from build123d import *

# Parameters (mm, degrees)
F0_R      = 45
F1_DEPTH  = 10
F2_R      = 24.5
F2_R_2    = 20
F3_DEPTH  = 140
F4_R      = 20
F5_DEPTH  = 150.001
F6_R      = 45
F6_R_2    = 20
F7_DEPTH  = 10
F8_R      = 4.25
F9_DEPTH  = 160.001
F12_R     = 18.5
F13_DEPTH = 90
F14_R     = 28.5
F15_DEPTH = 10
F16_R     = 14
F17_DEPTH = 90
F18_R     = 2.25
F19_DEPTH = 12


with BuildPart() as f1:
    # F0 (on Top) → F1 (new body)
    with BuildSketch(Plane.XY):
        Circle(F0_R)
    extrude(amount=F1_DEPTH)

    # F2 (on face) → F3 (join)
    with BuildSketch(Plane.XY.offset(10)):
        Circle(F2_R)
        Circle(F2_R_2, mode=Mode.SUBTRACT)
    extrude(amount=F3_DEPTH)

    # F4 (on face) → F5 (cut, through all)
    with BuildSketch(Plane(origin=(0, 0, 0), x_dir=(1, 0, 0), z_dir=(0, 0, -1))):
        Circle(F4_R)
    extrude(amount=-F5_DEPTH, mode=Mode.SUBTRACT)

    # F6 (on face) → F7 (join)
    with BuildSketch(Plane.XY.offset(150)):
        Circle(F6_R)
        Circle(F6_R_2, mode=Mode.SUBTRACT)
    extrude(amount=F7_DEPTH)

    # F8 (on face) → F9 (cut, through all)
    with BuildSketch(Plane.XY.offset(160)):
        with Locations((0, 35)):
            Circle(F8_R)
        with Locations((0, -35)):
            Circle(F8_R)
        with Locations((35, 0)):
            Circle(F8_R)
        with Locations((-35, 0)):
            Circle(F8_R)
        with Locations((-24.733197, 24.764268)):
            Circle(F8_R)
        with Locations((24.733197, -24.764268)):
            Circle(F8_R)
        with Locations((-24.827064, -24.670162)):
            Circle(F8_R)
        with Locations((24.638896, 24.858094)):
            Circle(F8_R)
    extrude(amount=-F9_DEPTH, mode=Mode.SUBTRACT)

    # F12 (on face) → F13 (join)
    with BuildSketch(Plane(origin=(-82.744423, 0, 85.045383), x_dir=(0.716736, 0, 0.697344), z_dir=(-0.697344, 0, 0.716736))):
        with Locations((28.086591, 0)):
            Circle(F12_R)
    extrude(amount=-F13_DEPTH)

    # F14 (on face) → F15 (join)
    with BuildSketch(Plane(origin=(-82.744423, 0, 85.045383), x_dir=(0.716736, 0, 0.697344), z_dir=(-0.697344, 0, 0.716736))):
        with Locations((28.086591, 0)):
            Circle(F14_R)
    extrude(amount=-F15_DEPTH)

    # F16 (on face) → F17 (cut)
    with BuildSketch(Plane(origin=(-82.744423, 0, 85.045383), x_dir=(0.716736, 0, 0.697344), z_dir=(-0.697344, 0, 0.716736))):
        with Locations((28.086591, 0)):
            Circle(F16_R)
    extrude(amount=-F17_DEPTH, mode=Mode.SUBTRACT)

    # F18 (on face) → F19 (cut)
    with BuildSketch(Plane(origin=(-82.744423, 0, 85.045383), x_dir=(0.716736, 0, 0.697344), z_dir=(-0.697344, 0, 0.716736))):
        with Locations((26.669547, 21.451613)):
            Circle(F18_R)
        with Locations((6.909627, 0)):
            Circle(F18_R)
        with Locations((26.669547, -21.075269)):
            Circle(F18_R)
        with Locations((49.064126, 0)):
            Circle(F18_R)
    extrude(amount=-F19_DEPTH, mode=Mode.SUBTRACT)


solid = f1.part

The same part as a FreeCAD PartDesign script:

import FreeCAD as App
import Part
import Sketcher
Q = App.Units.Quantity

doc = App.newDocument("Part")
params = doc.addObject("Spreadsheet::Sheet", "Params")
for row, (alias, value) in enumerate([
    ("sketch1_diameter", "90 mm"),
    ("pad1_length", "10 mm"),
    ("sketch2_diameter", "49 mm"),
    ("sketch2_diameter2", "40 mm"),
    ("pad2_length", "140 mm"),
    ("sketch3_diameter", "40 mm"),
    ("sketch4_diameter", "90 mm"),
    ("sketch4_diameter2", "40 mm"),
    ("pad3_length", "10 mm"),
    ("sketch5_diameter", "8.5 mm"),
    ("sketch6_diameter", "37 mm"),
    ("pad4_length", "90 mm"),
    ("sketch7_diameter", "57 mm"),
    ("pad5_length", "10 mm"),
    ("sketch8_diameter", "28 mm"),
    ("pocket3_length", "90 mm"),
    ("sketch9_diameter", "4.5 mm"),
    ("pocket4_length", "12 mm"),
], start=1):
    params.set(f"A{row}", alias)
    params.set(f"B{row}", "=" + value)
    params.setAlias(f"B{row}", alias)

body = doc.addObject("PartDesign::Body", "Body")

# Sketch on XY plane
sketch1 = doc.addObject("Sketcher::SketchObject", "Sketch")
body.addObject(sketch1)
sketch1.AttachmentSupport = (doc.XY_Plane, [""])
sketch1.MapMode = "FlatFace"
sketch1.addGeometry(Part.Circle(App.Vector(0, 0, 0), App.Vector(0, 0, 1), 45), False)
sketch1.addConstraint([
    Sketcher.Constraint("Coincident", 0, 3, -1, 1),
    Sketcher.Constraint("Diameter", 0, Q("90 mm")),
])
sketch1.setExpression("Constraints[1]", "Params.sketch1_diameter")
pad1 = doc.addObject("PartDesign::Pad", "Pad")
body.addObject(pad1)
pad1.Profile = sketch1
pad1.setExpression("Length", "Params.pad1_length")

# Sketch on XY plane
sketch2 = doc.addObject("Sketcher::SketchObject", "Sketch001")
body.addObject(sketch2)
sketch2.AttachmentSupport = (doc.XY_Plane, [""])
sketch2.MapMode = "FlatFace"
sketch2.AttachmentOffset = App.Placement(App.Vector(0, 0, 10), App.Rotation())
sketch2.addGeometry([
    Part.Circle(App.Vector(0, 0, 0), App.Vector(0, 0, 1), 24),
    Part.Circle(App.Vector(0, 0, 0), App.Vector(0, 0, 1), 20),
], False)
sketch2.addConstraint([
    Sketcher.Constraint("Coincident", 0, 3, -1, 1),
    Sketcher.Constraint("Coincident", 1, 3, -1, 1),
    Sketcher.Constraint("Diameter", 0, Q("49 mm")),
    Sketcher.Constraint("Diameter", 1, Q("40 mm")),
])
sketch2.setExpression("Constraints[2]", "Params.sketch2_diameter")
sketch2.setExpression("Constraints[3]", "Params.sketch2_diameter2")
pad2 = doc.addObject("PartDesign::Pad", "Pad001")
body.addObject(pad2)
pad2.Profile = sketch2
pad2.setExpression("Length", "Params.pad2_length")

# Sketch on XY plane
sketch3 = doc.addObject("Sketcher::SketchObject", "Sketch002")
body.addObject(sketch3)
sketch3.AttachmentSupport = (doc.XY_Plane, [""])
sketch3.MapMode = "FlatFace"
sketch3.addGeometry(Part.Circle(App.Vector(0, 0, 0), App.Vector(0, 0, 1), 20), False)
sketch3.addConstraint([
    Sketcher.Constraint("Coincident", 0, 3, -1, 1),
    Sketcher.Constraint("Diameter", 0, Q("40 mm")),
])
sketch3.setExpression("Constraints[1]", "Params.sketch3_diameter")
pocket1 = doc.addObject("PartDesign::Pocket", "Pocket")
body.addObject(pocket1)
pocket1.Profile = sketch3
pocket1.Type = "ThroughAll"
pocket1.Reversed = True

# Sketch on XY plane
sketch4 = doc.addObject("Sketcher::SketchObject", "Sketch003")
body.addObject(sketch4)
sketch4.AttachmentSupport = (doc.XY_Plane, [""])
sketch4.MapMode = "FlatFace"
sketch4.AttachmentOffset = App.Placement(App.Vector(0, 0, 150), App.Rotation())
sketch4.addGeometry([
    Part.Circle(App.Vector(0, 0, 0), App.Vector(0, 0, 1), 45),
    Part.Circle(App.Vector(0, 0, 0), App.Vector(0, 0, 1), 20),
], False)
sketch4.addConstraint([
    Sketcher.Constraint("Coincident", 0, 3, -1, 1),
    Sketcher.Constraint("Coincident", 1, 3, -1, 1),
    Sketcher.Constraint("Diameter", 0, Q("90 mm")),
    Sketcher.Constraint("Diameter", 1, Q("40 mm")),
])
sketch4.setExpression("Constraints[2]", "Params.sketch4_diameter")
sketch4.setExpression("Constraints[3]", "Params.sketch4_diameter2")
pad3 = doc.addObject("PartDesign::Pad", "Pad002")
body.addObject(pad3)
pad3.Profile = sketch4
pad3.setExpression("Length", "Params.pad3_length")

# Sketch on XY plane
sketch5 = doc.addObject("Sketcher::SketchObject", "Sketch004")
body.addObject(sketch5)
sketch5.AttachmentSupport = (doc.XY_Plane, [""])
sketch5.MapMode = "FlatFace"
sketch5.AttachmentOffset = App.Placement(App.Vector(0, 0, 160), App.Rotation())
sketch5.addGeometry([
    Part.Circle(App.Vector(0, 35, 0), App.Vector(0, 0, 1), 4.2),  # 0
    Part.Circle(App.Vector(0, -35, 0), App.Vector(0, 0, 1), 4.2),  # 1
    Part.Circle(App.Vector(35, 0, 0), App.Vector(0, 0, 1), 4.2),  # 2
    Part.Circle(App.Vector(-35, 0, 0), App.Vector(0, 0, 1), 4.2),  # 3
    Part.Circle(App.Vector(-24.7, 24.8, 0), App.Vector(0, 0, 1), 4.2),  # 4
    Part.Circle(App.Vector(24.7, -24.8, 0), App.Vector(0, 0, 1), 4.2),  # 5
    Part.Circle(App.Vector(-24.8, -24.7, 0), App.Vector(0, 0, 1), 4.2),  # 6
    Part.Circle(App.Vector(24.6, 24.9, 0), App.Vector(0, 0, 1), 4.2),  # 7
], False)
sketch5.addConstraint([
    Sketcher.Constraint("Equal", 0, 1),
    Sketcher.Constraint("Equal", 1, 2),
    Sketcher.Constraint("Equal", 2, 3),
    Sketcher.Constraint("Equal", 3, 4),
    Sketcher.Constraint("Equal", 4, 5),
    Sketcher.Constraint("Equal", 5, 6),
    Sketcher.Constraint("Equal", 6, 7),
    Sketcher.Constraint("Symmetric", 0, 3, 1, 3, -1, 1),
    Sketcher.Constraint("Symmetric", 2, 3, 3, 3, -1, 1),
    Sketcher.Constraint("Symmetric", 4, 3, 5, 3, -1, 1),
    Sketcher.Constraint("PointOnObject", 0, 3, -2),
    Sketcher.Constraint("PointOnObject", 2, 3, -1),
    Sketcher.Constraint("Diameter", 0, Q("8.5 mm")),
    Sketcher.Constraint("DistanceY", -1, 1, 0, 3, Q("35 mm")),
    Sketcher.Constraint("DistanceX", -1, 1, 2, 3, Q("35 mm")),
    Sketcher.Constraint("DistanceX", 7, 3, 5, 3, Q("0.094301 mm")),
    Sketcher.Constraint("DistanceY", -1, 1, 4, 3, Q("24.764268 mm")),
    Sketcher.Constraint("DistanceY", 6, 3, 4, 3, Q("49.43443 mm")),
    Sketcher.Constraint("DistanceX", 6, 3, 5, 3, Q("49.560261 mm")),
    Sketcher.Constraint("DistanceX", 4, 3, -1, 1, Q("24.733197 mm")),
    Sketcher.Constraint("DistanceY", -1, 1, 7, 3, Q("24.858094 mm")),
])
sketch5.setExpression("Constraints[12]", "Params.sketch5_diameter")
pocket2 = doc.addObject("PartDesign::Pocket", "Pocket001")
body.addObject(pocket2)
pocket2.Profile = sketch5
pocket2.Type = "ThroughAll"

# Sketch on an angled plane
sketch6 = doc.addObject("Sketcher::SketchObject", "Sketch005")
body.addObject(sketch6)
sketch6.Placement = App.Placement(App.Vector(-82.744423, 0, 85.045383), App.Rotation(App.Vector(0.716736305, 0, 0.697344297), App.Vector(0, 0.999999999, 0), App.Vector(-0.697344297, 0, 0.716736305), "ZXY"))
sketch6.addGeometry(Part.Circle(App.Vector(28, 0, 0), App.Vector(0, 0, 1), 18), False)
sketch6.addConstraint([
    Sketcher.Constraint("PointOnObject", 0, 3, -1),
    Sketcher.Constraint("Diameter", 0, Q("37 mm")),
    Sketcher.Constraint("DistanceX", -1, 1, 0, 3, Q("28.086591 mm")),
])
sketch6.setExpression("Constraints[1]", "Params.sketch6_diameter")
pad4 = doc.addObject("PartDesign::Pad", "Pad003")
body.addObject(pad4)
pad4.Profile = sketch6
pad4.setExpression("Length", "Params.pad4_length")
pad4.Reversed = True

# Sketch on an angled plane
sketch7 = doc.addObject("Sketcher::SketchObject", "Sketch006")
body.addObject(sketch7)
sketch7.Placement = App.Placement(App.Vector(-82.744423, 0, 85.045383), App.Rotation(App.Vector(0.716736305, 0, 0.697344297), App.Vector(0, 0.999999999, 0), App.Vector(-0.697344297, 0, 0.716736305), "ZXY"))
sketch7.addGeometry(Part.Circle(App.Vector(28, 0, 0), App.Vector(0, 0, 1), 28), False)
sketch7.addConstraint([
    Sketcher.Constraint("PointOnObject", 0, 3, -1),
    Sketcher.Constraint("Diameter", 0, Q("57 mm")),
    Sketcher.Constraint("DistanceX", -1, 1, 0, 3, Q("28.086591 mm")),
])
sketch7.setExpression("Constraints[1]", "Params.sketch7_diameter")
pad5 = doc.addObject("PartDesign::Pad", "Pad004")
body.addObject(pad5)
pad5.Profile = sketch7
pad5.setExpression("Length", "Params.pad5_length")
pad5.Reversed = True

# Sketch on an angled plane
sketch8 = doc.addObject("Sketcher::SketchObject", "Sketch007")
body.addObject(sketch8)
sketch8.Placement = App.Placement(App.Vector(-82.744423, 0, 85.045383), App.Rotation(App.Vector(0.716736305, 0, 0.697344297), App.Vector(0, 0.999999999, 0), App.Vector(-0.697344297, 0, 0.716736305), "ZXY"))
sketch8.addGeometry(Part.Circle(App.Vector(28, 0, 0), App.Vector(0, 0, 1), 14), False)
sketch8.addConstraint([
    Sketcher.Constraint("PointOnObject", 0, 3, -1),
    Sketcher.Constraint("Diameter", 0, Q("28 mm")),
    Sketcher.Constraint("DistanceX", -1, 1, 0, 3, Q("28.086591 mm")),
])
sketch8.setExpression("Constraints[1]", "Params.sketch8_diameter")
pocket3 = doc.addObject("PartDesign::Pocket", "Pocket002")
body.addObject(pocket3)
pocket3.Profile = sketch8
pocket3.setExpression("Length", "Params.pocket3_length")

# Sketch on an angled plane
sketch9 = doc.addObject("Sketcher::SketchObject", "Sketch008")
body.addObject(sketch9)
sketch9.Placement = App.Placement(App.Vector(-82.744423, 0, 85.045383), App.Rotation(App.Vector(0.716736305, 0, 0.697344297), App.Vector(0, 0.999999999, 0), App.Vector(-0.697344297, 0, 0.716736305), "ZXY"))
sketch9.addGeometry([
    Part.Circle(App.Vector(26.7, 21.5, 0), App.Vector(0, 0, 1), 2.2),
    Part.Circle(App.Vector(6.9, 0, 0), App.Vector(0, 0, 1), 2.2),
    Part.Circle(App.Vector(26.7, -21.1, 0), App.Vector(0, 0, 1), 2.2),
    Part.Circle(App.Vector(49.1, 0, 0), App.Vector(0, 0, 1), 2.2),
], False)
sketch9.addConstraint([
    Sketcher.Constraint("Equal", 0, 1),
    Sketcher.Constraint("Equal", 1, 2),
    Sketcher.Constraint("Equal", 2, 3),
    Sketcher.Constraint("PointOnObject", 1, 3, -1),
    Sketcher.Constraint("PointOnObject", 3, 3, -1),
    Sketcher.Constraint("Vertical", 0, 3, 2, 3),
    Sketcher.Constraint("Diameter", 0, Q("4.5 mm")),
    Sketcher.Constraint("DistanceX", 1, 3, 3, 3, Q("42.154499 mm")),
    Sketcher.Constraint("DistanceY", 2, 3, -1, 1, Q("21.075269 mm")),
    Sketcher.Constraint("DistanceX", 1, 3, 0, 3, Q("19.75992 mm")),
    Sketcher.Constraint("DistanceY", 2, 3, 0, 3, Q("42.526882 mm")),
    Sketcher.Constraint("DistanceX", -1, 1, 0, 3, Q("26.669547 mm")),
])
sketch9.setExpression("Constraints[6]", "Params.sketch9_diameter")
pocket4 = doc.addObject("PartDesign::Pocket", "Pocket003")
body.addObject(pocket4)
pocket4.Profile = sketch9
pocket4.setExpression("Length", "Params.pocket4_length")

doc.recompute()
